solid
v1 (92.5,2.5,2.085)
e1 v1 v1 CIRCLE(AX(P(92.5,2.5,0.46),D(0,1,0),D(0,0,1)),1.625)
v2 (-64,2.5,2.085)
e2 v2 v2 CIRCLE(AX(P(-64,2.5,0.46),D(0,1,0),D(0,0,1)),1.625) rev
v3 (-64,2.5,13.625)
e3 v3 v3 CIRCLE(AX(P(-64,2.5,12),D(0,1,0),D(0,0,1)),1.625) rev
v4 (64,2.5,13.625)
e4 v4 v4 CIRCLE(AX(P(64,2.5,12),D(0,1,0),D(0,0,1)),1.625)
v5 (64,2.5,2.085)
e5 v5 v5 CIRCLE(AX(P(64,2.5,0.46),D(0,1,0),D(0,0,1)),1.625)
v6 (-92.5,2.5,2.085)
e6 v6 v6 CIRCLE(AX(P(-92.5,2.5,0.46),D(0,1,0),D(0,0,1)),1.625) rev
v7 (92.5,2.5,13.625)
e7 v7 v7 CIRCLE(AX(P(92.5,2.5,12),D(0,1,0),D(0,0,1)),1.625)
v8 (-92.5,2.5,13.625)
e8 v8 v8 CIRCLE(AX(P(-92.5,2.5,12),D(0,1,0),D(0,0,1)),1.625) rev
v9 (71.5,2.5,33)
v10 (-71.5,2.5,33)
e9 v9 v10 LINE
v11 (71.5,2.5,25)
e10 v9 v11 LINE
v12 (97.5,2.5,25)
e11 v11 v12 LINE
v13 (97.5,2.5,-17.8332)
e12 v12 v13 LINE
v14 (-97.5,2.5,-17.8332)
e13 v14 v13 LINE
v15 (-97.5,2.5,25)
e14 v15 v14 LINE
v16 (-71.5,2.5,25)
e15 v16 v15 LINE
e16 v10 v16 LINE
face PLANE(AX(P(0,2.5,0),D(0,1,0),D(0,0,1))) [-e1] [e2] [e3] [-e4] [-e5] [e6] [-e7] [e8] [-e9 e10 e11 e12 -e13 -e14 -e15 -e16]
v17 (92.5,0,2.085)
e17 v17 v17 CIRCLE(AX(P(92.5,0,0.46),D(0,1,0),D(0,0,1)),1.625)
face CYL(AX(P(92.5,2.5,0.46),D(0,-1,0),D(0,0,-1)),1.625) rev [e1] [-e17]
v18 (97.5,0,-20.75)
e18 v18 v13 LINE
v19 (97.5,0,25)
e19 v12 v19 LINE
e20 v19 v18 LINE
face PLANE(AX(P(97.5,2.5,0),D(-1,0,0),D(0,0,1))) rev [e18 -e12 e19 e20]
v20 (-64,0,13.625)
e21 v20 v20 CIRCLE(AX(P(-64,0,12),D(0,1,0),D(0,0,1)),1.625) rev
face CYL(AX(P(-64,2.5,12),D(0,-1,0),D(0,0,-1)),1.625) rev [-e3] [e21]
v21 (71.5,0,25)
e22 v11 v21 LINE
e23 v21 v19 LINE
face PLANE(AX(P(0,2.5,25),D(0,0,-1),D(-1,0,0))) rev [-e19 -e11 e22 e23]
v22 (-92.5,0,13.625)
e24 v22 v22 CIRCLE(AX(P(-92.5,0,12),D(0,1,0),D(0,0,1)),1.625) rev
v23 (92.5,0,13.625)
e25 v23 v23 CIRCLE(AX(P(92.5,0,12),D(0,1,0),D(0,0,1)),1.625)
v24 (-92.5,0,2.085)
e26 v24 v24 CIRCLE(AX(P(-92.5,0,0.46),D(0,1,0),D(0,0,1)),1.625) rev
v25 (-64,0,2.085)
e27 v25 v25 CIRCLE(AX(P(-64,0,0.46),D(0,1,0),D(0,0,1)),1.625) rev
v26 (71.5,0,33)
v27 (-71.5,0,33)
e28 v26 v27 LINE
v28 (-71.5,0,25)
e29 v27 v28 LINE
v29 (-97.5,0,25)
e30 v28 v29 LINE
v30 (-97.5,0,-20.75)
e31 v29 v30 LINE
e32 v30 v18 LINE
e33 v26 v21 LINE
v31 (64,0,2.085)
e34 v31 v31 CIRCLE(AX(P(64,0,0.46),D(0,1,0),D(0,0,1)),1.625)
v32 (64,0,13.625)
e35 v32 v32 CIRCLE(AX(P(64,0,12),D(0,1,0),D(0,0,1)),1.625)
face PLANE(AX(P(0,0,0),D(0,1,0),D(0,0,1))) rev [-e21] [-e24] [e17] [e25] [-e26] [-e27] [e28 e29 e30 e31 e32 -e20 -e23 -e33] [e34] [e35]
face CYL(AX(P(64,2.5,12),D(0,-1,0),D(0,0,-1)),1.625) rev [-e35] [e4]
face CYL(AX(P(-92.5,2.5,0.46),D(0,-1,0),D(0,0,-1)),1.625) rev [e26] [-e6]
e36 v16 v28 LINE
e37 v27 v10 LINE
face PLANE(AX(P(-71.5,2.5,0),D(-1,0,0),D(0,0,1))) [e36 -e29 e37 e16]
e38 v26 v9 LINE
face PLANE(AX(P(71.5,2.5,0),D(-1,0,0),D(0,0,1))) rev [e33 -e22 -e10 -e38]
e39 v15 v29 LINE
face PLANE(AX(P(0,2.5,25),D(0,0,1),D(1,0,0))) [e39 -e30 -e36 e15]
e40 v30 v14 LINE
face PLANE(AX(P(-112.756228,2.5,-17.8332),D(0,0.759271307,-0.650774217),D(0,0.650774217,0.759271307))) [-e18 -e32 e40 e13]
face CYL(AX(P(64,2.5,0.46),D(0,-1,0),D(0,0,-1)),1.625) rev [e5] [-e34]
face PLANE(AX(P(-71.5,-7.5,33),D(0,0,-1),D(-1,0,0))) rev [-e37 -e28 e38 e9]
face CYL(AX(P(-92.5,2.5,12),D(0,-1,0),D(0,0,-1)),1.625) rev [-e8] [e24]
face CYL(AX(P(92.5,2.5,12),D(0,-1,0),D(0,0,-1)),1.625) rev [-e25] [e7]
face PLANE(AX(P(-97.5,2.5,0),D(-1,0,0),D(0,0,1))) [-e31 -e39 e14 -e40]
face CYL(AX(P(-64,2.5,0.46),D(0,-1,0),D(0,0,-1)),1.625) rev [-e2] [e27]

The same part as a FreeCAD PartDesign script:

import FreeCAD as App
import Part
import Sketcher
from FreeCAD import Vector
Q = App.Units.Quantity


def add_polygon(sketch, points):
    """Adds a closed chain of lines whose ends are joined by coincident constraints."""
    first, n = sketch.GeometryCount, len(points)
    for a, b in zip(points, points[1:] + points[:1]):
        sketch.addGeometry(Part.LineSegment(App.Vector(*a, 0), App.Vector(*b, 0)), False)
    for i in range(n):
        sketch.addConstraint(Sketcher.Constraint("Coincident", first + i, 2, first + (i + 1) % n, 1))

doc = App.newDocument("Part")
body = doc.addObject("PartDesign::Body", "Body")

# Sketch on XZ plane
sketch1 = body.newObject("Sketcher::SketchObject", "Sketch")
sketch1.AttachmentSupport = (doc.getObject("XZ_Plane"), [""])
sketch1.MapMode = "FlatFace"
add_polygon(sketch1, [(-71.5, 25), (-71.5, 61), (71.5, 61), (71.5, 25), (97.5, 25), (97.5, -5.7), (-97.5, -5.7), (-97.5, 25)])  # lines 0-7
sketch1.addGeometry(Part.Circle(Vector(-92.5, 12, 0), Vector(0, 0, 1), 1.625), False)  # 8
sketch1.addGeometry(Part.Circle(Vector(-64, 12, 0), Vector(0, 0, 1), 1.625), False)  # 9
sketch1.addGeometry(Part.Circle(Vector(64, 12, 0), Vector(0, 0, 1), 1.625), False)  # 10
sketch1.addGeometry(Part.Circle(Vector(92.5, 12, 0), Vector(0, 0, 1), 1.625), False)  # 11
sketch1.addGeometry(Part.Circle(Vector(-92.5, 0.46, 0), Vector(0, 0, 1), 1.625), False)  # 12
sketch1.addGeometry(Part.Circle(Vector(-64, 0.46, 0), Vector(0, 0, 1), 1.625), False)  # 13
sketch1.addGeometry(Part.Circle(Vector(64, 0.46, 0), Vector(0, 0, 1), 1.625), False)  # 14
sketch1.addGeometry(Part.Circle(Vector(92.5, 0.46, 0), Vector(0, 0, 1), 1.625), False)  # 15
sketch1.addConstraint([
    Sketcher.Constraint("Vertical", 0),
    Sketcher.Constraint("Horizontal", 1),
    Sketcher.Constraint("Vertical", 2),
    Sketcher.Constraint("Horizontal", 3),
    Sketcher.Constraint("Vertical", 4),
    Sketcher.Constraint("Horizontal", 5),
    Sketcher.Constraint("Vertical", 6),
    Sketcher.Constraint("Horizontal", 7),
    Sketcher.Constraint("Equal", 8, 9),
    Sketcher.Constraint("Equal", 9, 10),
    Sketcher.Constraint("Equal", 10, 11),
    Sketcher.Constraint("Equal", 11, 12),
    Sketcher.Constraint("Equal", 12, 13),
    Sketcher.Constraint("Equal", 13, 14),
    Sketcher.Constraint("Equal", 14, 15),
    Sketcher.Constraint("Symmetric", 9, 3, 10, 3, -2),
    Sketcher.Constraint("Symmetric", 8, 3, 11, 3, -2),
    Sketcher.Constraint("Symmetric", 13, 3, 14, 3, -2),
    Sketcher.Constraint("Symmetric", 12, 3, 15, 3, -2),
    Sketcher.Constraint("Symmetric", 3, 2, 6, 2, -2),
    Sketcher.Constraint("Horizontal", 8, 3, 9, 3),
    Sketcher.Constraint("Horizontal", 12, 3, 13, 3),
    Sketcher.Constraint("Vertical", 8, 3, 12, 3),
    Sketcher.Constraint("Vertical", 9, 3, 13, 3),
    Sketcher.Constraint("Equal", 3, 7),
    Sketcher.Constraint("Diameter", 8, Q("3.25 mm")),
    Sketcher.Constraint("DistanceX", 1, 1, 1, 2, Q("143 mm")),
    Sketcher.Constraint("DistanceX", 3, 1, 3, 2, Q("26 mm")),
    Sketcher.Constraint("DistanceY", 0, 1, 0, 2, Q("36 mm")),
    Sketcher.Constraint("DistanceY", 4, 2, 4, 1, Q("30.7 mm")),
    Sketcher.Constraint("DistanceY", -1, 1, 8, 3, Q("12 mm")),
    Sketcher.Constraint("DistanceX", 9, 3, -1, 1, Q("64 mm")),
    Sketcher.Constraint("DistanceY", -1, 1, 0, 2, Q("61 mm")),
    Sketcher.Constraint("DistanceX", 8, 3, 11, 3, Q("185 mm")),
    Sketcher.Constraint("DistanceY", -1, 1, 12, 3, Q("0.46 mm")),
])
pad1 = body.newObject("PartDesign::Pad", "Pad")
pad1.Profile = sketch1
pad1.Length = 2.5
pad1.Reversed = True

# Sketch on YZ plane
sketch2 = body.newObject("Sketcher::SketchObject", "Sketch001")
sketch2.AttachmentSupport = (doc.getObject("YZ_Plane"), [""])
sketch2.MapMode = "FlatFace"
sketch2.AttachmentOffset = App.Placement(Vector(0, 0, 97.5), App.Rotation())
add_polygon(sketch2, [(2.5, -17.8332), (2.5, -5.7), (0, -5.7), (0, -20.75)])  # lines 0-3
sketch2.addConstraint([
    Sketcher.Constraint("Vertical", 0),
    Sketcher.Constraint("Horizontal", 1),
    Sketcher.Constraint("Vertical", 2),
    Sketcher.Constraint("PointOnObject", 1, 2, -2),
    Sketcher.Constraint("DistanceX", 1, 2, 1, 1, Q("2.5 mm")),
    Sketcher.Constraint("Angle", 3, Q("49.4 deg")),
    Sketcher.Constraint("DistanceY", 2, 2, 2, 1, Q("15.05 mm")),
    Sketcher.Constraint("DistanceY", 0, 2, -1, 1, Q("5.7 mm")),
])
pad2 = body.newObject("PartDesign::Pad", "Pad001")
pad2.Profile = sketch2
pad2.Length = 195
pad2.Reversed = True

# Sketch on XZ plane
sketch3 = body.newObject("Sketcher::SketchObject", "Sketch002")
sketch3.AttachmentSupport = (doc.getObject("XZ_Plane"), [""])
sketch3.MapMode = "FlatFace"
sketch3.AttachmentOffset = App.Placement(Vector(0, 0, -2.5), App.Rotation())
add_polygon(sketch3, [(-71.5, 33), (-71.5, 61), (71.5, 61), (71.5, 33)])  # lines 0-3
sketch3.addConstraint([
    Sketcher.Constraint("Vertical", 0),
    Sketcher.Constraint("Horizontal", 1),
    Sketcher.Constraint("Vertical", 2),
    Sketcher.Constraint("Horizontal", 3),
    Sketcher.Constraint("DistanceX", 1, 1, 1, 2, Q("143 mm")),
    Sketcher.Constraint("DistanceY", 0, 1, 0, 2, Q("28 mm")),
    Sketcher.Constraint("DistanceY", -1, 1, 0, 2, Q("61 mm")),
    Sketcher.Constraint("DistanceX", 0, 2, -1, 1, Q("71.5 mm")),
])
pocket1 = body.newObject("PartDesign::Pocket", "Pocket")
pocket1.Profile = sketch3
pocket1.Length = 10
pocket1.Reversed = True

doc.recompute()
